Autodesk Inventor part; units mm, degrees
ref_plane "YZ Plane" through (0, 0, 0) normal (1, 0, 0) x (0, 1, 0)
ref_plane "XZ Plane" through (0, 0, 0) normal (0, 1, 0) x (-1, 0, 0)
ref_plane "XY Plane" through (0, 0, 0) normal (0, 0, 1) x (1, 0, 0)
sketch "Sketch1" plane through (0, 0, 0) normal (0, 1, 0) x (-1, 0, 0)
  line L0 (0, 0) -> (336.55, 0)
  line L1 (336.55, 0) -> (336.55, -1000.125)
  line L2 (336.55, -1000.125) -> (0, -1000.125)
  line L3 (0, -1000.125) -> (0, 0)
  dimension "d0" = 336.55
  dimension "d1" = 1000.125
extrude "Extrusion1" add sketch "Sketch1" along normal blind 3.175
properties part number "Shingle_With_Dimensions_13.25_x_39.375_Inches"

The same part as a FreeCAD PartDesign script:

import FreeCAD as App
import Part
import Sketcher
Q = App.Units.Quantity


def add_polygon(sketch, points):
    """Adds a closed chain of lines whose ends are joined by coincident constraints."""
    first, n = sketch.GeometryCount, len(points)
    for a, b in zip(points, points[1:] + points[:1]):
        sketch.addGeometry(Part.LineSegment(App.Vector(*a, 0), App.Vector(*b, 0)), False)
    for i in range(n):
        sketch.addConstraint(Sketcher.Constraint("Coincident", first + i, 2, first + (i + 1) % n, 1))

doc = App.newDocument("Part")
body = doc.addObject("PartDesign::Body", "Body")

# Sketch on XZ plane
sketch1 = doc.addObject("Sketcher::SketchObject", "Sketch")
body.addObject(sketch1)
sketch1.AttachmentSupport = (doc.XZ_Plane, [""])
sketch1.MapMode = "FlatFace"
add_polygon(sketch1, [(-337, 0), (0, 0), (0, -1000), (-337, -1000)])  # lines 0-3
sketch1.addConstraint([
    Sketcher.Constraint("Horizontal", 0),
    Sketcher.Constraint("Vertical", 1),
    Sketcher.Constraint("Horizontal", 2),
    Sketcher.Constraint("Vertical", 3),
    Sketcher.Constraint("Coincident", 0, 2, -1, 1),
    Sketcher.Constraint("DistanceX", 0, 1, 0, 2, Q("13.25 in")),
    Sketcher.Constraint("DistanceY", 1, 2, 1, 1, Q("39.375 in")),
])
pad1 = doc.addObject("PartDesign::Pad", "Pad")
body.addObject(pad1)
pad1.Profile = sketch1
pad1.Length = Q("0.125 in")
pad1.Reversed = True

doc.recompute()
